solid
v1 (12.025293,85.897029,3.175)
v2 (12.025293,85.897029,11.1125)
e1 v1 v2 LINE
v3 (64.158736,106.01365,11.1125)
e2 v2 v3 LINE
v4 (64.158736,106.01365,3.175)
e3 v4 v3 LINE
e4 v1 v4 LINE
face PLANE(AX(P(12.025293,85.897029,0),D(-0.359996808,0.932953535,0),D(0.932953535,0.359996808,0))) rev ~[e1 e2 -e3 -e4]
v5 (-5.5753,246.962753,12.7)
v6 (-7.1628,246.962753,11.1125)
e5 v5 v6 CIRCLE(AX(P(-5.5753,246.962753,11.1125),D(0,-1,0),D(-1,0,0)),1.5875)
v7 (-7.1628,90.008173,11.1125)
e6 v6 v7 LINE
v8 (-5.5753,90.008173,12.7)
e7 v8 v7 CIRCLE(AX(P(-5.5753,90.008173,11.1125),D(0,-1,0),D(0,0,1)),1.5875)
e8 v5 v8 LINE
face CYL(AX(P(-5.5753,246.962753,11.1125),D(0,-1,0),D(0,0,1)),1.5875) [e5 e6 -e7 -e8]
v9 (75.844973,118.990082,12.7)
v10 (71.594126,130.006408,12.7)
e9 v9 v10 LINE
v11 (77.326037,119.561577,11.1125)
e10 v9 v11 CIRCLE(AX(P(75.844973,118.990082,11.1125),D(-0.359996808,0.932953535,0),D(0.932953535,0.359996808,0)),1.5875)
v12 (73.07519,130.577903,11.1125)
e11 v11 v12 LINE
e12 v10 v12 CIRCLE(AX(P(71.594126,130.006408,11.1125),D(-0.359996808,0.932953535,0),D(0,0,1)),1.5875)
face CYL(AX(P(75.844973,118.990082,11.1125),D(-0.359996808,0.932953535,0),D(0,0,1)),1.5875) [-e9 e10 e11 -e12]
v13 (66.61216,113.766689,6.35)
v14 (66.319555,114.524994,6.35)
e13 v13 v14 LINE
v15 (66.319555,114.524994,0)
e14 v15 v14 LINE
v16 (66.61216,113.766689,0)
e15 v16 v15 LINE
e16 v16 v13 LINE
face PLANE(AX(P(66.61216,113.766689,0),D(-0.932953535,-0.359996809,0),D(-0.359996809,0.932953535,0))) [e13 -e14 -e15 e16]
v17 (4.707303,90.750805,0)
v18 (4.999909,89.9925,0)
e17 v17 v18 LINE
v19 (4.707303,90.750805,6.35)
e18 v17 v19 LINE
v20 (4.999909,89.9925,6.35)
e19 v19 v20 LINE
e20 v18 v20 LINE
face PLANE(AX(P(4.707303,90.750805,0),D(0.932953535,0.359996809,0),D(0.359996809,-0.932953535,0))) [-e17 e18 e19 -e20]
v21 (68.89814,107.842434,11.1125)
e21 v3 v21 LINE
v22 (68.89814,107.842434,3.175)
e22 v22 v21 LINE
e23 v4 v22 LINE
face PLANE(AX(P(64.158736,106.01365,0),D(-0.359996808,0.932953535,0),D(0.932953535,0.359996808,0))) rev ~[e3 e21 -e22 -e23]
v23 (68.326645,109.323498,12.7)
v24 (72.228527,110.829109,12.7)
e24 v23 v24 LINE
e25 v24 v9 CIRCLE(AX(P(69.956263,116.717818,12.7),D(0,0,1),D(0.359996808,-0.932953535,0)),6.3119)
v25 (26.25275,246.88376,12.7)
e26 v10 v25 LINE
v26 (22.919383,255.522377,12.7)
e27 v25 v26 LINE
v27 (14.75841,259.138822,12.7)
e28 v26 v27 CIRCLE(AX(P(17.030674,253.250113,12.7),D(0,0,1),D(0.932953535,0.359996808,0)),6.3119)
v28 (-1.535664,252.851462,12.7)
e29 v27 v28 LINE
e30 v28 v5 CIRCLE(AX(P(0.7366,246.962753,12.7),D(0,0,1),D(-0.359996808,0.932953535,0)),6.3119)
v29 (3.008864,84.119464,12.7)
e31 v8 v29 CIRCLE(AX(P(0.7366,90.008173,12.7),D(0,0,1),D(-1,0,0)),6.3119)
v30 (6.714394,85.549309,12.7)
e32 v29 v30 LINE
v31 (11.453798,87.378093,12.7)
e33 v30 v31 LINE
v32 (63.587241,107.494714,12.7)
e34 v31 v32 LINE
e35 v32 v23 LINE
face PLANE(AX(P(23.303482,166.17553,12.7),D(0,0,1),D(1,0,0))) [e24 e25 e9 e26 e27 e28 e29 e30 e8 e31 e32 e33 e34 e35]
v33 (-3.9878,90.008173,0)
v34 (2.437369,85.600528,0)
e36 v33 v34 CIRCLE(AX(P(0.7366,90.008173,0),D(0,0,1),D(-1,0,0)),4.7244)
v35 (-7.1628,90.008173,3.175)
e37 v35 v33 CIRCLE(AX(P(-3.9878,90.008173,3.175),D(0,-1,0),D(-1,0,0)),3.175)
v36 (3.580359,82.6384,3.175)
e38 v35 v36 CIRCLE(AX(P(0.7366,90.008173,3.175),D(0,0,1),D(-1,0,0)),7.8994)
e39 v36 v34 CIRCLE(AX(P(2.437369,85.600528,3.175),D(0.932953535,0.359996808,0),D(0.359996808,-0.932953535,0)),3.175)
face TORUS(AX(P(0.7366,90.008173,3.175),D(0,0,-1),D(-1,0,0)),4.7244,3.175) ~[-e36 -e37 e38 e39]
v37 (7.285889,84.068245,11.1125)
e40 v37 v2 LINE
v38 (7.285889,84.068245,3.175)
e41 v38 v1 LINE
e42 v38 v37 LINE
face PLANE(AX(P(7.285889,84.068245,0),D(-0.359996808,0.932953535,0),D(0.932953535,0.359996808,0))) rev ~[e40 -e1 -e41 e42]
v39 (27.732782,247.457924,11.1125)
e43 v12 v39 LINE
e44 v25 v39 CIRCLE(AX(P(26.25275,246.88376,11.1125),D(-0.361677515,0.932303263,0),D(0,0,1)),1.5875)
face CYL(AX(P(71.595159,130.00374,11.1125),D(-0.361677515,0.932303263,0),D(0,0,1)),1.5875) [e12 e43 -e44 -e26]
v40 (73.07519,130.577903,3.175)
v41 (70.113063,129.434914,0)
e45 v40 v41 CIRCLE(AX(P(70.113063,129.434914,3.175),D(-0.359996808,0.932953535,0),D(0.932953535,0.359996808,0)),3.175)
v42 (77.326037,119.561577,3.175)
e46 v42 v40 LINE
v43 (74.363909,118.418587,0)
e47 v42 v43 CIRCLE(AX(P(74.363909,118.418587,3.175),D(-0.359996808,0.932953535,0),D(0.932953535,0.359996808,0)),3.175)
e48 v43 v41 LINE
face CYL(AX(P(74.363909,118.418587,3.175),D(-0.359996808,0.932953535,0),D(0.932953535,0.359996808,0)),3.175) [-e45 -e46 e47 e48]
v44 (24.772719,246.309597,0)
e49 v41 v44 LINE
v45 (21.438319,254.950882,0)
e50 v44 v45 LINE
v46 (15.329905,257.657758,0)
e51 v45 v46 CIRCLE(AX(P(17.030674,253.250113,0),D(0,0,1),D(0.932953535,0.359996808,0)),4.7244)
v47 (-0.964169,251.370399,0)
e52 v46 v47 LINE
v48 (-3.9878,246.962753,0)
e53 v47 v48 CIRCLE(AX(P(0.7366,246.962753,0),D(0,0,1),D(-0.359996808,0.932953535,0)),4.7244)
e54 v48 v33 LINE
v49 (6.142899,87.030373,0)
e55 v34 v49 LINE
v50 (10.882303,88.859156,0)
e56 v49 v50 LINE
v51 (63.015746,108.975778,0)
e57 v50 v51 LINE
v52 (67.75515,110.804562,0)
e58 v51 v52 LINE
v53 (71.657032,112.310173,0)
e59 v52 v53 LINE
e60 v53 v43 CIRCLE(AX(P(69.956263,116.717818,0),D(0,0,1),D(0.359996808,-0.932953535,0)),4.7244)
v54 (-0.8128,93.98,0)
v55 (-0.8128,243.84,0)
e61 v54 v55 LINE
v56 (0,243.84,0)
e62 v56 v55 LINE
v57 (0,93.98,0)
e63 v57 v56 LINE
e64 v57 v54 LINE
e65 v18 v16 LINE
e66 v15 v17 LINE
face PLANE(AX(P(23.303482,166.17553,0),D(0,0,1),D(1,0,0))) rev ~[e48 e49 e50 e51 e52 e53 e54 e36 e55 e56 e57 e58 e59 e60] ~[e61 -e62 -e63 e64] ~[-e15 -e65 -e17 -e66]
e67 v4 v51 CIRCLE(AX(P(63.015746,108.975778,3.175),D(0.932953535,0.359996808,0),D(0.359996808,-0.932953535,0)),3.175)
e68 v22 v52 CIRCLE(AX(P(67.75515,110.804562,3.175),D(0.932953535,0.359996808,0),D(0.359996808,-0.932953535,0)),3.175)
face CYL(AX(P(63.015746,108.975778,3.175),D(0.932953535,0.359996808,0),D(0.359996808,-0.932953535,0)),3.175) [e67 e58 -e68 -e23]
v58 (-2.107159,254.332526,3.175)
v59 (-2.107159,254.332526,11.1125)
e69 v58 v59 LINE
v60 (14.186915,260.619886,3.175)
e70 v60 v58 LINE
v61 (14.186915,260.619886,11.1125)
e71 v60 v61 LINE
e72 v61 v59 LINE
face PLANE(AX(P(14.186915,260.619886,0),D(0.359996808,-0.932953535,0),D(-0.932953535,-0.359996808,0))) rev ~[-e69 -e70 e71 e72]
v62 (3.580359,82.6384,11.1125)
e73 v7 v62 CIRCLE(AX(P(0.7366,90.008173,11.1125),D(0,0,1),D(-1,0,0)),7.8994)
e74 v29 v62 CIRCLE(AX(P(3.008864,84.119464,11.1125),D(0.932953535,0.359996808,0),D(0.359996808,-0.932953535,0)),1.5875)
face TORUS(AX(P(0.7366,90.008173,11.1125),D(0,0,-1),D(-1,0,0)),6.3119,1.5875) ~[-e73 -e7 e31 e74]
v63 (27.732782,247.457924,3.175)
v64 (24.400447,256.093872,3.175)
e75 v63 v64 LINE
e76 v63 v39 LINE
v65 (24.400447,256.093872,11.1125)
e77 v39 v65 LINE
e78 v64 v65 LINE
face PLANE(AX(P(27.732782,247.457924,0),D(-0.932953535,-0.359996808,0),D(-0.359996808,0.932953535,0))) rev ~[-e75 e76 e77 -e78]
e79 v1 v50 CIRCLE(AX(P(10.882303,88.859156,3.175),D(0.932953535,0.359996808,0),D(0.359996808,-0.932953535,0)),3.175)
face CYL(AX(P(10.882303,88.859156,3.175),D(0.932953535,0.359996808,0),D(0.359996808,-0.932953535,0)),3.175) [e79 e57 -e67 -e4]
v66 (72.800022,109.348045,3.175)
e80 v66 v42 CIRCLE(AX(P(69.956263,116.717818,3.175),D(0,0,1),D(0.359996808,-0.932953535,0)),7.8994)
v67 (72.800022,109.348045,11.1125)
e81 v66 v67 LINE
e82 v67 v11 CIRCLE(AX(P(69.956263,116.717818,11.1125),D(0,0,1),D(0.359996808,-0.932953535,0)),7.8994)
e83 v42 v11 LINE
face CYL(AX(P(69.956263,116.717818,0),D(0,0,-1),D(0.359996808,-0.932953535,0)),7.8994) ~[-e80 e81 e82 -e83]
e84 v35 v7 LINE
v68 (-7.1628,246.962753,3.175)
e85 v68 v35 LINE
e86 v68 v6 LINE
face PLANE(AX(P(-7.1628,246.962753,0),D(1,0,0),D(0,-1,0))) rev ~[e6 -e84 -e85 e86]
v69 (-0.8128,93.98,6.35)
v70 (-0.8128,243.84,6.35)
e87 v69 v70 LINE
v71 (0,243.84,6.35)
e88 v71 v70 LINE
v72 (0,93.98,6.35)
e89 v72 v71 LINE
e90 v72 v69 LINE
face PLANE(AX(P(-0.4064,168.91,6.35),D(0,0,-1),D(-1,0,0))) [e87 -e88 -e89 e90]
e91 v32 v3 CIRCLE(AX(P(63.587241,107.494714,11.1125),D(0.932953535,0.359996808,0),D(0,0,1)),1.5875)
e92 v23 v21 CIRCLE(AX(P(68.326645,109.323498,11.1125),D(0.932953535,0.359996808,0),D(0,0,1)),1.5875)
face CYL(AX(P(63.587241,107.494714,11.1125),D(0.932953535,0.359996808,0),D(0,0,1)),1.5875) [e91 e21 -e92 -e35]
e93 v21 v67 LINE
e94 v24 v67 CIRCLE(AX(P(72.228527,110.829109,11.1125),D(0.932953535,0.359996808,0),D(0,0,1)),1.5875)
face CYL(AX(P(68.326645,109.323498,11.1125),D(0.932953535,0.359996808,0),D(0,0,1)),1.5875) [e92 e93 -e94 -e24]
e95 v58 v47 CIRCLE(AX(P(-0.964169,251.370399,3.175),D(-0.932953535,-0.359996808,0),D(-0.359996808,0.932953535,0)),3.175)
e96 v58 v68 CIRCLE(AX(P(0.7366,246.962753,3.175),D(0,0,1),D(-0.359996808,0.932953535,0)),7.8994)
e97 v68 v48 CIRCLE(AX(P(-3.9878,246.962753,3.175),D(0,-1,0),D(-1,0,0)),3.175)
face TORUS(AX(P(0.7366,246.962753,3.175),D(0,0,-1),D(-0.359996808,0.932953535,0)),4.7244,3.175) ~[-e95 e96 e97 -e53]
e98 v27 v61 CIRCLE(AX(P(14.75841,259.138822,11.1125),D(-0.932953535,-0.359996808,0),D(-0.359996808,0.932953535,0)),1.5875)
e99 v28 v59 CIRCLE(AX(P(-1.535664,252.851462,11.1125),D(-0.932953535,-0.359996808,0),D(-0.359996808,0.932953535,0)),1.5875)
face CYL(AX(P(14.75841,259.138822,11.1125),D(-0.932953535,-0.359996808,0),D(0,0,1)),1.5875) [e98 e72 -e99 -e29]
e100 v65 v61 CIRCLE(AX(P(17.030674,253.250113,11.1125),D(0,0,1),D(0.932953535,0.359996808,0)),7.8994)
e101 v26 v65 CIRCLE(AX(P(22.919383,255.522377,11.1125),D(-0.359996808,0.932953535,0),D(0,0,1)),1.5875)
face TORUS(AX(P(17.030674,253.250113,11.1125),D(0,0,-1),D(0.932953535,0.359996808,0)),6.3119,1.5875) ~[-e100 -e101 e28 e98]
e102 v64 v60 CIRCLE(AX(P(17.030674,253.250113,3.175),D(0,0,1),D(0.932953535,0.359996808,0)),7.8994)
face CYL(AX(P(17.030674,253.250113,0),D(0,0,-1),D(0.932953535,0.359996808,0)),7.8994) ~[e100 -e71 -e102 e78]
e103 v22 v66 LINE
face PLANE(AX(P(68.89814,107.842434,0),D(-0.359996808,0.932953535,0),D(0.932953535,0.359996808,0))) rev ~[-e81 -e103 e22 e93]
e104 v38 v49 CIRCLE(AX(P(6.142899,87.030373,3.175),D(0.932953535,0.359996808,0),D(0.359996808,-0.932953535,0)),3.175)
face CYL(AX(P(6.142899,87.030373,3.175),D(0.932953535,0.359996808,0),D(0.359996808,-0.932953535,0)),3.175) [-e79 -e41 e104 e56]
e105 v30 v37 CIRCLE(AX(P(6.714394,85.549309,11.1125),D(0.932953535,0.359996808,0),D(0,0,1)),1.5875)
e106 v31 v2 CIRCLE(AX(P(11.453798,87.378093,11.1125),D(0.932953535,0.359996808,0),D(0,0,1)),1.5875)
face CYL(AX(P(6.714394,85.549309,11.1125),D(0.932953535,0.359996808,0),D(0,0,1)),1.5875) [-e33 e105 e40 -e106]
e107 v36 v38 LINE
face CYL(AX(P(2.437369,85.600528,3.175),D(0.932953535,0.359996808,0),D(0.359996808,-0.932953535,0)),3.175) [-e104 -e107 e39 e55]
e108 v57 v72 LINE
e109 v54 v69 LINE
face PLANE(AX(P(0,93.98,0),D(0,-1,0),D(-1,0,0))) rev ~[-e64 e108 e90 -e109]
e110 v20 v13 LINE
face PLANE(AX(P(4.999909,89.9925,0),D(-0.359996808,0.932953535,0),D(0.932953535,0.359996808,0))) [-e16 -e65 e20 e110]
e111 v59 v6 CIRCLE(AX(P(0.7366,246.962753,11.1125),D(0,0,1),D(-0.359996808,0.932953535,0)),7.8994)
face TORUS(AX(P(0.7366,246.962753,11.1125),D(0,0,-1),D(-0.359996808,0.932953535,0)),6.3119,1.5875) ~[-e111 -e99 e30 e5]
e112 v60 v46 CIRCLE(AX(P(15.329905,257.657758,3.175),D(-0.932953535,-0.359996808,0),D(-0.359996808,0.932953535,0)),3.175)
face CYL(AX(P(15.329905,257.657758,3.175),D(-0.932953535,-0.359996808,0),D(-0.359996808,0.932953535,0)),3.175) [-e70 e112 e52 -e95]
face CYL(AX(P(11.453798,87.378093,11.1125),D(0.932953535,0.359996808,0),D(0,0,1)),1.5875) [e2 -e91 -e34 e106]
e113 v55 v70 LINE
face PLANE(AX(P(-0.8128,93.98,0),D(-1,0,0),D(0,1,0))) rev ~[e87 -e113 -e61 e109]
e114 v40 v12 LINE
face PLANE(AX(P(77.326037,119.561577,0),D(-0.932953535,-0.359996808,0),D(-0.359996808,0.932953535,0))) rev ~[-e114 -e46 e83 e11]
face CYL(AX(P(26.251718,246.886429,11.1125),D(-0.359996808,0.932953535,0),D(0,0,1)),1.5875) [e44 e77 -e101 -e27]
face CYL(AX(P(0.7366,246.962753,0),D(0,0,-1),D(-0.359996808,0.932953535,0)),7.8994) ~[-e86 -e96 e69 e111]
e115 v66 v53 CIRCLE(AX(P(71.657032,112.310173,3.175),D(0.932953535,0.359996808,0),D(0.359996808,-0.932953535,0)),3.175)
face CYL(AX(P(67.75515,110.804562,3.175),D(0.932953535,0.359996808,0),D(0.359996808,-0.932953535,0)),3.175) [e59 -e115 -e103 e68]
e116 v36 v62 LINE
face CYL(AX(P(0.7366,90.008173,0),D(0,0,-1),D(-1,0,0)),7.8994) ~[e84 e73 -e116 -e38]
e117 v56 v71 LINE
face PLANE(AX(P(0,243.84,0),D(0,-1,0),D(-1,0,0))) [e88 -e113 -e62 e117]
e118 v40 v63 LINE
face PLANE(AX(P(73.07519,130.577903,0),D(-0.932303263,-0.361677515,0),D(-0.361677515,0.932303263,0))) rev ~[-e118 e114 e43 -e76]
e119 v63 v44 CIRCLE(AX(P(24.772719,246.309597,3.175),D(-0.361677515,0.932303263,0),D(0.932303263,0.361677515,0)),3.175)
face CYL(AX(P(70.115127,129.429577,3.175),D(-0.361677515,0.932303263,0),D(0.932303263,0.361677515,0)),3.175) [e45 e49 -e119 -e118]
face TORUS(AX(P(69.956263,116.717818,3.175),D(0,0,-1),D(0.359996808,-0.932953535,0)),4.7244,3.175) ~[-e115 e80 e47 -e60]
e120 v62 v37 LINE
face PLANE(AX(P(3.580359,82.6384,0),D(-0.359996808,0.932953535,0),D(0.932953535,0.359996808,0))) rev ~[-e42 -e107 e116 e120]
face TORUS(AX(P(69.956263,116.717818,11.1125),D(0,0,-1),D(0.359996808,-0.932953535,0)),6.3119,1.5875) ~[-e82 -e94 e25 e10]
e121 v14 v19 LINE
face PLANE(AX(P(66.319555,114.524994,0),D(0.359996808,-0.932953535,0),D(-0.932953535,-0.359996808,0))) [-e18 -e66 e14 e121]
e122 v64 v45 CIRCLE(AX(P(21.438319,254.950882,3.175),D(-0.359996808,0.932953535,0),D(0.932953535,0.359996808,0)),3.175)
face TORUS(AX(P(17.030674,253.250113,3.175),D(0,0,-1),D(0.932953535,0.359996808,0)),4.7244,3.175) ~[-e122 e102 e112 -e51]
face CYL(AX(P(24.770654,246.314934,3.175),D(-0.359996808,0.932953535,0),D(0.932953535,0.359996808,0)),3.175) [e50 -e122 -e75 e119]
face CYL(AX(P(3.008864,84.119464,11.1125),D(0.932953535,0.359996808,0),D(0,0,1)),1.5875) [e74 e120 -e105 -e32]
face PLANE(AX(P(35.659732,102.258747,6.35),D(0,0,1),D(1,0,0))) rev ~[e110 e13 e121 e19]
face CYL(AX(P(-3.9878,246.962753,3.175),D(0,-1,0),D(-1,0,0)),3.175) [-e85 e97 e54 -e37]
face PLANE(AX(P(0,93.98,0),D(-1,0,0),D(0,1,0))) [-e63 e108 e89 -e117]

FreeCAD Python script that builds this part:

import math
import FreeCAD as App
import Part
import Sketcher
from FreeCAD import Vector
Q = App.Units.Quantity


def edges_at(feature, points):
    """Names of the edges that pass closest to the given points."""
    edges = feature.Shape.Edges
    near = lambda p: min(range(len(edges)), key=lambda i: edges[i].distToShape(Part.Vertex(*p))[0])
    return sorted({f"Edge{near(p) + 1}" for p in points})


def add_polygon(sketch, points):
    """Adds a closed chain of lines whose ends are joined by coincident constraints."""
    first, n = sketch.GeometryCount, len(points)
    for a, b in zip(points, points[1:] + points[:1]):
        sketch.addGeometry(Part.LineSegment(App.Vector(*a, 0), App.Vector(*b, 0)), False)
    for i in range(n):
        sketch.addConstraint(Sketcher.Constraint("Coincident", first + i, 2, first + (i + 1) % n, 1))

doc = App.newDocument("Part")
params = doc.addObject("Spreadsheet::Sheet", "Params")
for row, (alias, value) in enumerate([
    ("sketch1_radius", "0.311 in"),
    ("sketch1_length", "0.2 in"),
    ("sketch1_length2", "2.2 in"),
    ("pad1_length", "0.5 in"),
    ("fillet_radius", "0.125 in"),
    ("fillet2_radius", "0.0625 in"),
    ("sketch2_height", "5.9 in"),
    ("sketch2_width", "0.032 in"),
    ("pocket1_length", "0.25 in"),
    ("sketch3_length", "2.6 in"),
    ("sketch3_length2", "0.032 in"),
    ("pocket2_length", "0.25 in"),
], start=1):
    params.set(f"A{row}", alias)
    params.set(f"B{row}", "=" + value)
    params.setAlias(f"B{row}", alias)

body = doc.addObject("PartDesign::Body", "Body")

# Sketch on XY plane
sketch1 = body.newObject("Sketcher::SketchObject", "Sketch")
sketch1.AttachmentSupport = (doc.getObject("XY_Plane"), [""])
sketch1.MapMode = "FlatFace"
sketch1.addGeometry([
    Part.LineSegment(Vector(73.1, 130.6, 0), Vector(27.7, 247.5, 0)),  # 0
    Part.LineSegment(Vector(27.7, 247.5, 0), Vector(24.4, 256.1, 0)),  # 1
    Part.ArcOfCircle(Part.Circle(Vector(17, 253.3, 0), Vector(0, 0, 1), 7.9), math.radians(21), math.radians(111)),  # 2
    Part.LineSegment(Vector(14.2, 260.6, 0), Vector(-2.1, 254.3, 0)),  # 3
    Part.ArcOfCircle(Part.Circle(Vector(0.7, 247, 0), Vector(0, 0, 1), 7.9), math.radians(111), math.radians(180)),  # 4
    Part.LineSegment(Vector(-7.2, 247, 0), Vector(-7.2, 90, 0)),  # 5
    Part.ArcOfCircle(Part.Circle(Vector(0.7, 90, 0), Vector(0, 0, 1), 7.9), math.radians(180), math.radians(291)),  # 6
    Part.LineSegment(Vector(3.6, 82.6, 0), Vector(7.3, 84.1, 0)),  # 7
    Part.LineSegment(Vector(7.3, 84.1, 0), Vector(12, 85.9, 0)),  # 8
    Part.LineSegment(Vector(12, 85.9, 0), Vector(64.2, 106, 0)),  # 9
    Part.LineSegment(Vector(64.2, 106, 0), Vector(68.9, 107.8, 0)),  # 10
    Part.LineSegment(Vector(68.9, 107.8, 0), Vector(72.8, 109.3, 0)),  # 11
    Part.ArcOfCircle(Part.Circle(Vector(70, 116.7, 0), Vector(0, 0, 1), 7.9), math.radians(-69), math.radians(21)),  # 12
    Part.LineSegment(Vector(77.3, 119.6, 0), Vector(73.1, 130.6, 0)),  # 13
], False)
sketch1.addConstraint([
    Sketcher.Constraint("Coincident", 0, 2, 1, 1),
    Sketcher.Constraint("Tangent", 1, 2, 2, 1),
    Sketcher.Constraint("Tangent", 2, 2, 3, 1),
    Sketcher.Constraint("Tangent", 3, 2, 4, 1),
    Sketcher.Constraint("Tangent", 4, 2, 5, 1),
    Sketcher.Constraint("Tangent", 5, 2, 6, 1),
    Sketcher.Constraint("Tangent", 6, 2, 7, 1),
    Sketcher.Constraint("Coincident", 7, 2, 8, 1),
    Sketcher.Constraint("Coincident", 8, 2, 9, 1),
    Sketcher.Constraint("Coincident", 9, 2, 10, 1),
    Sketcher.Constraint("Coincident", 10, 2, 11, 1),
    Sketcher.Constraint("Tangent", 11, 2, 12, 1),
    Sketcher.Constraint("Tangent", 12, 2, 13, 1),
    Sketcher.Constraint("Coincident", 13, 2, 0, 1),
    Sketcher.Constraint("Vertical", 5),
    Sketcher.Constraint("Equal", 2, 4),
    Sketcher.Constraint("Equal", 4, 6),
    Sketcher.Constraint("Equal", 6, 12),
    Sketcher.Constraint("Perpendicular", 1, 3),
    Sketcher.Constraint("Parallel", 3, 7),
    Sketcher.Constraint("Parallel", 7, 8),
    Sketcher.Constraint("Parallel", 8, 9),
    Sketcher.Constraint("Parallel", 9, 10),
    Sketcher.Constraint("Parallel", 10, 11),
    Sketcher.Constraint("Perpendicular", 11, 13),
    Sketcher.Constraint("Equal", 8, 10),
    Sketcher.Constraint("Radius", 2, Q("0.311 in")),
    Sketcher.Constraint("Distance", 8, Q("0.2 in")),
    Sketcher.Constraint("Distance", 9, Q("2.2 in")),
    Sketcher.Constraint("Angle", 1, Q("111.1 deg")),
    Sketcher.Constraint("DistanceX", -1, 1, 4, 3, Q("0.029 in")),
    Sketcher.Constraint("Distance", 3, Q("0.6876001 in")),
    Sketcher.Constraint("DistanceY", 5, 2, 5, 1, Q("156.95458 mm")),
    Sketcher.Constraint("DistanceY", -1, 1, 6, 2, Q("82.6384 mm")),
    Sketcher.Constraint("DistanceY", 7, 2, 11, 2, Q("25.2798 mm")),
    Sketcher.Constraint("Distance", 1, Q("9.256568 mm")),
    Sketcher.Constraint("Distance", 13, Q("11.808012 mm")),
    Sketcher.Constraint("DistanceY", -1, 1, 12, 3, Q("116.717818 mm")),
])
sketch1.setExpression("Constraints[26]", "Params.sketch1_radius")
sketch1.setExpression("Constraints[27]", "Params.sketch1_length")
sketch1.setExpression("Constraints[28]", "Params.sketch1_length2")
pad1 = body.newObject("PartDesign::Pad", "Pad")
pad1.Profile = sketch1
pad1.setExpression("Length", "Params.pad1_length")
doc.recompute()

fillet = body.newObject("PartDesign::Fillet", "Fillet")
fillet.Base = (pad1, edges_at(pad1, [
    (-7.163, 168.485, 0),
    (-3.732, 83.494, 0),
    (38.092, 95.955, 0),
    (77.178, 113.517, 0),
    (75.201, 125.07, 0),
    (50.404, 189.018, 0),
    (26.067, 251.776, 0),
    (20.231, 260.472, 0),
    (6.04, 257.476, 0),
    (-5.777, 251.431, 0),
]))
fillet.setExpression("Radius", "Params.fillet_radius")
doc.recompute()

fillet2 = body.newObject("PartDesign::Fillet", "Fillet001")
fillet2.Base = (fillet, edges_at(fillet, [
    (-5.777, 251.431, 12.7),
    (6.04, 257.476, 12.7),
    (20.231, 260.472, 12.7),
    (26.067, 251.776, 12.7),
    (50.404, 189.018, 12.7),
    (75.201, 125.07, 12.7),
    (77.178, 113.517, 12.7),
    (38.092, 95.955, 12.7),
    (-7.163, 168.485, 12.7),
    (-3.732, 83.494, 12.7),
]))
fillet2.setExpression("Radius", "Params.fillet2_radius")

# Sketch on XY plane
sketch2 = body.newObject("Sketcher::SketchObject", "Sketch001")
sketch2.AttachmentSupport = (doc.getObject("XY_Plane"), [""])
sketch2.MapMode = "FlatFace"
add_polygon(sketch2, [(0, 243.8), (0, 94), (-0.8, 94), (-0.8, 243.8)])  # lines 0-3
sketch2.addConstraint([
    Sketcher.Constraint("Vertical", 0),
    Sketcher.Constraint("Horizontal", 1),
    Sketcher.Constraint("Vertical", 2),
    Sketcher.Constraint("Horizontal", 3),
    Sketcher.Constraint("PointOnObject", 0, 2, -2),
    Sketcher.Constraint("DistanceY", 0, 2, 0, 1, Q("5.9 in")),
    Sketcher.Constraint("DistanceY", -1, 1, 0, 2, Q("3.7 in")),
    Sketcher.Constraint("DistanceX", 1, 2, 1, 1, Q("0.032 in")),
])
sketch2.setExpression("Constraints[9]", "Params.sketch2_height")
sketch2.setExpression("Constraints[11]", "Params.sketch2_width")
pocket1 = body.newObject("PartDesign::Pocket", "Pocket")
pocket1.Profile = sketch2
pocket1.setExpression("Length", "Params.pocket1_length")
pocket1.Reversed = True

# Sketch on XY plane
sketch3 = body.newObject("Sketcher::SketchObject", "Sketch002")
sketch3.AttachmentSupport = (doc.getObject("XY_Plane"), [""])
sketch3.MapMode = "FlatFace"
add_polygon(sketch3, [(4.7, 90.8), (66.3, 114.5), (66.6, 113.8), (5, 90)])  # lines 0-3
sketch3.addConstraint([
    Sketcher.Constraint("Perpendicular", 0, 1),
    Sketcher.Constraint("Perpendicular", 1, 2),
    Sketcher.Constraint("Perpendicular", 2, 3),
    Sketcher.Constraint("Distance", 0, Q("2.6 in")),
    Sketcher.Constraint("Angle", 0, Q("21.1 deg")),
    Sketcher.Constraint("Distance", 1, Q("0.032 in")),
    Sketcher.Constraint("DistanceY", -1, 1, 2, 2, Q("89.9925 mm")),
    Sketcher.Constraint("DistanceX", -1, 1, 1, 2, Q("66.61216 mm")),
])
sketch3.setExpression("Constraints[7]", "Params.sketch3_length")
sketch3.setExpression("Constraints[9]", "Params.sketch3_length2")
pocket2 = body.newObject("PartDesign::Pocket", "Pocket001")
pocket2.Profile = sketch3
pocket2.setExpression("Length", "Params.pocket2_length")
pocket2.Reversed = True

doc.recompute()
